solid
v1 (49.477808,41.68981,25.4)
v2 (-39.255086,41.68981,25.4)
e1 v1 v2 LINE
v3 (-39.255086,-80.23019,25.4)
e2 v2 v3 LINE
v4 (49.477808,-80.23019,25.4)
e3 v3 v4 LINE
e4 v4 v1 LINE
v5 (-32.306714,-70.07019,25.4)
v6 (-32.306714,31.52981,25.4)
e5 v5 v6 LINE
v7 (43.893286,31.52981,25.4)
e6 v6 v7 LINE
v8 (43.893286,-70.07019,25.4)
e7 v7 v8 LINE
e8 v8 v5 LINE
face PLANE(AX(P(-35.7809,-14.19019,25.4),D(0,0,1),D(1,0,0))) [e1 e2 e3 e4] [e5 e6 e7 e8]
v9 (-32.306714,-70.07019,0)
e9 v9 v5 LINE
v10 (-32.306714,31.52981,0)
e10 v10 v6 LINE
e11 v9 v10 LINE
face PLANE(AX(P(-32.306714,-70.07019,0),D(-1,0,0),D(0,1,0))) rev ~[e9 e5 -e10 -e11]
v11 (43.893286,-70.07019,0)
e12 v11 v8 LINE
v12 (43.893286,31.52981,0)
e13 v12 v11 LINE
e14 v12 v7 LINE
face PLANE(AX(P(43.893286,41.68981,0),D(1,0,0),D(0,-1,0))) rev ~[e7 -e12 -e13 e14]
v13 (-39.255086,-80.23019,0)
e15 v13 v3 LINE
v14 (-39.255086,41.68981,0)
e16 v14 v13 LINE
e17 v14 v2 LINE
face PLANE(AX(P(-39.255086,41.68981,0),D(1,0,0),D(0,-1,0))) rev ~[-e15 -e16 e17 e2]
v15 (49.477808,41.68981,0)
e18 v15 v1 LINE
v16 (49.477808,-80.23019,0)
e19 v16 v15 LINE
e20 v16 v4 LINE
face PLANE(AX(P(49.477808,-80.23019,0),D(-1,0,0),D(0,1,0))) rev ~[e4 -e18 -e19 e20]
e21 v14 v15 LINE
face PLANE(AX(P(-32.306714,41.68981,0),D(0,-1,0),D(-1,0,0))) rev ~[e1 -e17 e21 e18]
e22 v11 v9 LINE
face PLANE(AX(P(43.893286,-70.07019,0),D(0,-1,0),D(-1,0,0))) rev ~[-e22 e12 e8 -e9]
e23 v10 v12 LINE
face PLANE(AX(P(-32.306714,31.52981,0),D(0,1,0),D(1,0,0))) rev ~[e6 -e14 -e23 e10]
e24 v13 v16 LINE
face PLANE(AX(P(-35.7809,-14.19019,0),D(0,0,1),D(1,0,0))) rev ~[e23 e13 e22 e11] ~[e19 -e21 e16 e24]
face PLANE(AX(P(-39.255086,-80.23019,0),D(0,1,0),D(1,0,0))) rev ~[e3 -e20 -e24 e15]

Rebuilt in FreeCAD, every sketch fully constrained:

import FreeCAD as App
import Part
import Sketcher

V = App.Vector
Q = App.Units.Quantity


def add_polygon(sketch, points):
    """Adds a closed chain of lines whose ends are joined by coincident constraints."""
    first, n = sketch.GeometryCount, len(points)
    for a, b in zip(points, points[1:] + points[:1]):
        sketch.addGeometry(Part.LineSegment(App.Vector(*a, 0), App.Vector(*b, 0)), False)
    for i in range(n):
        sketch.addConstraint(Sketcher.Constraint("Coincident", first + i, 2, first + (i + 1) % n, 1))

doc = App.newDocument("Part")
body = doc.addObject("PartDesign::Body", "Body")

# Sketch on XY plane
sketch1 = body.newObject("Sketcher::SketchObject", "Sketch")
sketch1.AttachmentSupport = (doc.getObject("XY_Plane"), [""])
sketch1.MapMode = "FlatFace"
add_polygon(sketch1, [(-32.306714, 41.68981), (-32.306714, 31.52981), (43.893286, 31.52981), (43.893286, 41.68981)])  # lines 0-3
sketch1.addConstraint([
    Sketcher.Constraint("Vertical", 0),
    Sketcher.Constraint("Horizontal", 1),
    Sketcher.Constraint("Vertical", 2),
    Sketcher.Constraint("Horizontal", 3),
    Sketcher.Constraint("DistanceX", 1, 1, 1, 2, Q("3 in")),
    Sketcher.Constraint("DistanceY", 0, 2, 0, 1, Q("0.4 in")),
    Sketcher.Constraint("DistanceY", -1, 1, 0, 2, Q("31.52981 mm")),
    Sketcher.Constraint("DistanceX", 0, 2, -1, 1, Q("32.306714 mm")),
])
pad1 = body.newObject("PartDesign::Pad", "Pad")
pad1.Profile = sketch1
pad1.Length = Q("1 in")

# Sketch on XY plane
sketch2 = body.newObject("Sketcher::SketchObject", "Sketch001")
sketch2.AttachmentSupport = (doc.getObject("XY_Plane"), [""])
sketch2.MapMode = "FlatFace"
add_polygon(sketch2, [(-32.306714, -70.07019), (-32.306714, 41.68981), (-39.255086, 41.68981), (-39.255086, -80.23019), (49.477808, -80.23019), (49.477808, 41.68981), (43.893286, 41.68981), (43.893286, -70.07019)])  # lines 0-7
sketch2.addConstraint([
    Sketcher.Constraint("Vertical", 0),
    Sketcher.Constraint("Horizontal", 1),
    Sketcher.Constraint("Vertical", 2),
    Sketcher.Constraint("Horizontal", 3),
    Sketcher.Constraint("Vertical", 4),
    Sketcher.Constraint("Horizontal", 5),
    Sketcher.Constraint("Vertical", 6),
    Sketcher.Constraint("Horizontal", 7),
    Sketcher.Constraint("Horizontal", 1, 2, 4, 2),
    Sketcher.Constraint("DistanceX", 7, 2, 7, 1, Q("3 in")),
    Sketcher.Constraint("DistanceY", 0, 1, 0, 2, Q("4.4 in")),
    Sketcher.Constraint("DistanceY", 2, 2, 2, 1, Q("4.8 in")),
    Sketcher.Constraint("DistanceX", 1, 2, 1, 1, Q("6.948372 mm")),
    Sketcher.Constraint("DistanceX", 5, 2, 5, 1, Q("5.584522 mm")),
    Sketcher.Constraint("DistanceY", -1, 1, 0, 2, Q("41.68981 mm")),
    Sketcher.Constraint("DistanceX", -1, 1, 3, 2, Q("49.477808 mm")),
])
pad2 = body.newObject("PartDesign::Pad", "Pad001")
pad2.Profile = sketch2
pad2.Length = Q("1 in")

doc.recompute()
